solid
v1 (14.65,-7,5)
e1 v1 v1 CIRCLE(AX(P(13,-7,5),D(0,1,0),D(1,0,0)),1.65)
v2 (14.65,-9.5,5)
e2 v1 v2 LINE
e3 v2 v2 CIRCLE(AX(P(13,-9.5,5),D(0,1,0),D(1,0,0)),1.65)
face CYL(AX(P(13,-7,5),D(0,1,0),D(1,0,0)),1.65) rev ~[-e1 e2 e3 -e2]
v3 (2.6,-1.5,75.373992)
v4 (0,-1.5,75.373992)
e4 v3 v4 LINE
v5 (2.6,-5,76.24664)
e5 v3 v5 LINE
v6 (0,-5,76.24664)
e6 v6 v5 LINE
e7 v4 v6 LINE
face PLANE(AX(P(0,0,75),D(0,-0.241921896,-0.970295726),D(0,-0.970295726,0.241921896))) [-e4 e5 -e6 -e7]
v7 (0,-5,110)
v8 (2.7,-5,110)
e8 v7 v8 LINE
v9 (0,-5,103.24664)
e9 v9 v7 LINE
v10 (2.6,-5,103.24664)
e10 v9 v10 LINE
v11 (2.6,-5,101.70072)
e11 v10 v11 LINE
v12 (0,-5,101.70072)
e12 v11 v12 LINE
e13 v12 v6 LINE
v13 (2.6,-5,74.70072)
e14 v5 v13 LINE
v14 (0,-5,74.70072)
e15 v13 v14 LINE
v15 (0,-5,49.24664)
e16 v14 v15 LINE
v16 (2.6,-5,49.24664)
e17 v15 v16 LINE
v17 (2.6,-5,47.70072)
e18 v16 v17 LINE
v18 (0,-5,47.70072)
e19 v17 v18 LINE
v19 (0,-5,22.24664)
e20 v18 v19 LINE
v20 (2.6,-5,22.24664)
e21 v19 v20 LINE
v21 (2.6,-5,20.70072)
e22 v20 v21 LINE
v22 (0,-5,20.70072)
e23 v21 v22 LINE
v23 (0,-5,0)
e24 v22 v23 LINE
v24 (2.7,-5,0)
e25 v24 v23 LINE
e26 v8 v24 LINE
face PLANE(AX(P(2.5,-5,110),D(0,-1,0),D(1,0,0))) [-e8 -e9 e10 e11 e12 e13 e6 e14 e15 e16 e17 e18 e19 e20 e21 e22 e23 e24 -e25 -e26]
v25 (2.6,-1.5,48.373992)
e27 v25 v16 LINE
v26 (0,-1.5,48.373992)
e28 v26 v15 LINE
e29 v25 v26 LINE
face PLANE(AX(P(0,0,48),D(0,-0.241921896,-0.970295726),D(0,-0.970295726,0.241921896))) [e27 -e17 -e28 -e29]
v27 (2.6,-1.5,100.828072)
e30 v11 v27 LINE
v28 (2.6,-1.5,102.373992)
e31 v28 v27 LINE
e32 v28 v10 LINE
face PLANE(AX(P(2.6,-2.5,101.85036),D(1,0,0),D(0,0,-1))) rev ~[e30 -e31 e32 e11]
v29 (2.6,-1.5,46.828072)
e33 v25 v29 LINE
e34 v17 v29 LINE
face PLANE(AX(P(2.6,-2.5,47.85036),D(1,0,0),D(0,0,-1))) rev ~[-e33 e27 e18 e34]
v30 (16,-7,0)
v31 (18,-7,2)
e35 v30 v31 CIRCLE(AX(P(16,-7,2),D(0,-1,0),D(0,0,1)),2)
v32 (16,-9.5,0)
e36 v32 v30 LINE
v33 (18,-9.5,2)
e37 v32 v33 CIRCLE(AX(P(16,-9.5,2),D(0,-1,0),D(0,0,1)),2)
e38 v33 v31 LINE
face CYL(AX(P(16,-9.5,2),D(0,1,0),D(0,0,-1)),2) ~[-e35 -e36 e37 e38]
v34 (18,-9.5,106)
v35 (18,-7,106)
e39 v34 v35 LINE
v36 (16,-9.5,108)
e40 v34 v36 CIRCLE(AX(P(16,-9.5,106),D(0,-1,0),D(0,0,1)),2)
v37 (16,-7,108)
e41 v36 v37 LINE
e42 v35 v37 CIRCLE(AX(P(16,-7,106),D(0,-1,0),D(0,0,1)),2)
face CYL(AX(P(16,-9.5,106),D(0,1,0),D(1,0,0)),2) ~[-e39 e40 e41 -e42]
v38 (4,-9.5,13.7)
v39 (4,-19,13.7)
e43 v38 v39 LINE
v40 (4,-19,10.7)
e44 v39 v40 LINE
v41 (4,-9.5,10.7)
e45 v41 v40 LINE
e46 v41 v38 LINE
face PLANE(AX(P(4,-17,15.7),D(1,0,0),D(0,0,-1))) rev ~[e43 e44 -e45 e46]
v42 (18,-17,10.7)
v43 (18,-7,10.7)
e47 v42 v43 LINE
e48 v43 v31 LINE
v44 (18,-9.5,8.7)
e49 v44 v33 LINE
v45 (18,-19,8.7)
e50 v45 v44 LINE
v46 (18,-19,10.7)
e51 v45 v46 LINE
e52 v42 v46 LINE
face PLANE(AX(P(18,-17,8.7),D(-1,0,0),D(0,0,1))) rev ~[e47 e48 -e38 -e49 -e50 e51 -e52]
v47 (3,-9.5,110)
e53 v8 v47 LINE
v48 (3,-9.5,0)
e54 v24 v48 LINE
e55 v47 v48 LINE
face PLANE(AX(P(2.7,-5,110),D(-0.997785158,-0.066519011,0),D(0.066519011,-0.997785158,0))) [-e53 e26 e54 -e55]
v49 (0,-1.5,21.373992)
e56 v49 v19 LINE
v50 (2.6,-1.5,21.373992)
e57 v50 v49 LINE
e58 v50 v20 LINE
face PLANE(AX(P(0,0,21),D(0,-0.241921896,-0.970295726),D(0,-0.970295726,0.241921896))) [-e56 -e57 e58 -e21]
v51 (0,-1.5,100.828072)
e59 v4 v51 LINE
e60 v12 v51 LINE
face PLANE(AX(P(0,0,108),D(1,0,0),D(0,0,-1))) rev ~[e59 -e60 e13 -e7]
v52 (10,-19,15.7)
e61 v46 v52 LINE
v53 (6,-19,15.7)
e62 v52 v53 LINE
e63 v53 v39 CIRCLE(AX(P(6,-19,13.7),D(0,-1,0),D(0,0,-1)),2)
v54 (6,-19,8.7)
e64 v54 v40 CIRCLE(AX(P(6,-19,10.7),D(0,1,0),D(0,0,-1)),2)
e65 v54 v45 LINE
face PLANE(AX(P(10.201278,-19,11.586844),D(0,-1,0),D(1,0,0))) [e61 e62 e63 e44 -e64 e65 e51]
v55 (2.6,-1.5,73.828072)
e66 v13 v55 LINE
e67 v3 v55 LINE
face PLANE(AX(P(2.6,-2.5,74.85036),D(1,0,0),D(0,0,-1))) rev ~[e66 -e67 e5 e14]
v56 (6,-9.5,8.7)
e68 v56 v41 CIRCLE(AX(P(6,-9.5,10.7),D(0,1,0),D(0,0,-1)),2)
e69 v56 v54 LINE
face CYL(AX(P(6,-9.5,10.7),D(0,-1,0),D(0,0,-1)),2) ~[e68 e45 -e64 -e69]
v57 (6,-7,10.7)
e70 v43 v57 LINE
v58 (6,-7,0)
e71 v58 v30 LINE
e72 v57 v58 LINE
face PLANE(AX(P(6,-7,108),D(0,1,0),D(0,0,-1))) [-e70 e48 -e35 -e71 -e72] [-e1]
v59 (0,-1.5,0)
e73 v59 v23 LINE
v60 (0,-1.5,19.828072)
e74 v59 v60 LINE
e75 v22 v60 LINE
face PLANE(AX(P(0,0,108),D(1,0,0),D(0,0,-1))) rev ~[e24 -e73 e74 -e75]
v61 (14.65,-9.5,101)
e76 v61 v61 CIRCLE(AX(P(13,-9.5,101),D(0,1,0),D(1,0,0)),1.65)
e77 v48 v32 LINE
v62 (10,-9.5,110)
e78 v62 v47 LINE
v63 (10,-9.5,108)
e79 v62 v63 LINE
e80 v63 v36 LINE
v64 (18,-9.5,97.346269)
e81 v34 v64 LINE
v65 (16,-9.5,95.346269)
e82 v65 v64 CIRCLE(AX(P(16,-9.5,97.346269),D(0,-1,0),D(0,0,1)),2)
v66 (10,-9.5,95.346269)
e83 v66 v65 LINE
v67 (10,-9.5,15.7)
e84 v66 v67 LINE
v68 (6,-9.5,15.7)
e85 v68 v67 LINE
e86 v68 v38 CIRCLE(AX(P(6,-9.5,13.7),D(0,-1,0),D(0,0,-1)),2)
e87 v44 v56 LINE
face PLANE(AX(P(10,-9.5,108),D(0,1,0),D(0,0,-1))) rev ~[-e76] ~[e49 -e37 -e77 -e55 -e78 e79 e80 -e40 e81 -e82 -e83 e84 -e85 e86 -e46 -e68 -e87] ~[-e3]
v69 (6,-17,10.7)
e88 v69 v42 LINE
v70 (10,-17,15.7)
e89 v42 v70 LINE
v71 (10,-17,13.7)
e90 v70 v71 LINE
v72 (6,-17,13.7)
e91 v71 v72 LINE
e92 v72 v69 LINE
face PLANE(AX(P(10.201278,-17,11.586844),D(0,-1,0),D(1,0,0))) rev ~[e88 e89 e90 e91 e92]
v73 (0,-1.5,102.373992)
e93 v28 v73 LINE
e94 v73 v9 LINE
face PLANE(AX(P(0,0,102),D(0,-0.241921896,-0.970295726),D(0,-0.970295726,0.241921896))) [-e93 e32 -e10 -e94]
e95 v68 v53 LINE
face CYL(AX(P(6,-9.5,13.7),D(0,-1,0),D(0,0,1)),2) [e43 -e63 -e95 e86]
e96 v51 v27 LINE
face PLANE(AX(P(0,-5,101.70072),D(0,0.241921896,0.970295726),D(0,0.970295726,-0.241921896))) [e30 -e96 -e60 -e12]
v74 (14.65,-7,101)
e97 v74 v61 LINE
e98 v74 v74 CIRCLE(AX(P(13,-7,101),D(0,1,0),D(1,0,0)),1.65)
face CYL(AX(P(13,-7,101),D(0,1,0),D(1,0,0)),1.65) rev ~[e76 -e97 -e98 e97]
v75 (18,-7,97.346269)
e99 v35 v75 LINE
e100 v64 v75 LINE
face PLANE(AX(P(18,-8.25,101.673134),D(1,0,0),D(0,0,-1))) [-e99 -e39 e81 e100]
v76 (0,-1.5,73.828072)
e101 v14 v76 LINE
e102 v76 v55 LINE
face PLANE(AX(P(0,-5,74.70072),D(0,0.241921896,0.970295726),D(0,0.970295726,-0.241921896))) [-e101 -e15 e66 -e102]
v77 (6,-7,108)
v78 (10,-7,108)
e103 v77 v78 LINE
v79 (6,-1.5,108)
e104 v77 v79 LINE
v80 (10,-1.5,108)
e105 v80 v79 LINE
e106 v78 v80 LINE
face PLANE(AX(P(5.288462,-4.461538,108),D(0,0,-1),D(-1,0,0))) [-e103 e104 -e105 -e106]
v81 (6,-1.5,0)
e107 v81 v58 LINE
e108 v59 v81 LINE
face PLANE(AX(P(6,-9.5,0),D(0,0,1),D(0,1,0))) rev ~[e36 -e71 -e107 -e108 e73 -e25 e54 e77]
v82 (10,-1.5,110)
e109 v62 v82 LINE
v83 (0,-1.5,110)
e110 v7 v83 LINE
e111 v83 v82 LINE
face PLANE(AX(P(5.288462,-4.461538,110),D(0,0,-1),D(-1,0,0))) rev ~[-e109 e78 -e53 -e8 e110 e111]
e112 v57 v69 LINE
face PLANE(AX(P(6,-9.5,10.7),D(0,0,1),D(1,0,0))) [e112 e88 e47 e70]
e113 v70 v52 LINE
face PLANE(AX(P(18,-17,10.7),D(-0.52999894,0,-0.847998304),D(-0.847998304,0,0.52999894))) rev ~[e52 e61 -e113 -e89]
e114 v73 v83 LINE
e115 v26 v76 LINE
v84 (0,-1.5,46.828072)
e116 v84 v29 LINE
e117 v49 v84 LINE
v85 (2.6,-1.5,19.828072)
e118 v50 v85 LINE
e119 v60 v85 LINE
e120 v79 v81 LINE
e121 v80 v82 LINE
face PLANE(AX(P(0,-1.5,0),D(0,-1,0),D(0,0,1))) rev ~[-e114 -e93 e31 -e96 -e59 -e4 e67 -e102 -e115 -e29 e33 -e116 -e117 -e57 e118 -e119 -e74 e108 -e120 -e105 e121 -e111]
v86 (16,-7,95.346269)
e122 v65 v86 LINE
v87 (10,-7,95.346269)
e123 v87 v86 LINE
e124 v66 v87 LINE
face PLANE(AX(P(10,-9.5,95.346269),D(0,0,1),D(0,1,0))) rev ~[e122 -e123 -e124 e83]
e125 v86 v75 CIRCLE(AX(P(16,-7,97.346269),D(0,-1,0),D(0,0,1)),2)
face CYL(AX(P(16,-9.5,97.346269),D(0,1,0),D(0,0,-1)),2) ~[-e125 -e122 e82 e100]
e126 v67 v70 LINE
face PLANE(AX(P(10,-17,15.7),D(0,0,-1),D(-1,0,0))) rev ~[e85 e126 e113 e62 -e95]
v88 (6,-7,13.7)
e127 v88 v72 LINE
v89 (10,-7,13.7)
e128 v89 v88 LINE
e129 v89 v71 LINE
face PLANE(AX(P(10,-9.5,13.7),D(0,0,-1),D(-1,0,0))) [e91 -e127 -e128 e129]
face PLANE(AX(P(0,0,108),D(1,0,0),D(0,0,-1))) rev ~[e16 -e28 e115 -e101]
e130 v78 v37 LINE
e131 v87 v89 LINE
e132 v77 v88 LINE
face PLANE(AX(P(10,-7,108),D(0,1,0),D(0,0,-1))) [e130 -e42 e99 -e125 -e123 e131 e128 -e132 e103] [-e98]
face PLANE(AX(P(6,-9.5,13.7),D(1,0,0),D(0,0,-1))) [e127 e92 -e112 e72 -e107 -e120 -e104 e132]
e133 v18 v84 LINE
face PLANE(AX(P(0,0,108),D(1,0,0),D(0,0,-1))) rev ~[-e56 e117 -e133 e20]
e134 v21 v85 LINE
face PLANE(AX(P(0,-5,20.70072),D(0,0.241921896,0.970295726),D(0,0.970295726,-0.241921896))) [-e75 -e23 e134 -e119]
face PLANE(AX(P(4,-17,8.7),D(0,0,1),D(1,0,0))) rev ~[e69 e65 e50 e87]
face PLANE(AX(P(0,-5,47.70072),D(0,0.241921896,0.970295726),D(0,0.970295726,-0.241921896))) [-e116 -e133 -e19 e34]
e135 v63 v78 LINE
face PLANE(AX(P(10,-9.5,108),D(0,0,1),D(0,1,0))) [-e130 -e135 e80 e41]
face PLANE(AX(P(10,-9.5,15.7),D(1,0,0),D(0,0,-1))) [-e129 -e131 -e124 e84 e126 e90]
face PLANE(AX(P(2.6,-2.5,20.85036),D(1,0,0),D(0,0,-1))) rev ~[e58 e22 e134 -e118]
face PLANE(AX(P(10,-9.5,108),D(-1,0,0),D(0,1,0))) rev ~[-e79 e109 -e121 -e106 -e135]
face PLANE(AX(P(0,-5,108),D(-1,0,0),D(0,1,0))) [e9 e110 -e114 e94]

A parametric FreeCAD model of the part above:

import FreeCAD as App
import Part
import Sketcher
from FreeCAD import Vector
Q = App.Units.Quantity


def edges_at(feature, points):
    """Names of the edges that pass closest to the given points."""
    edges = feature.Shape.Edges
    near = lambda p: min(range(len(edges)), key=lambda i: edges[i].distToShape(Part.Vertex(*p))[0])
    return sorted({f"Edge{near(p) + 1}" for p in points})

doc = App.newDocument("Part")
params = doc.addObject("Spreadsheet::Sheet", "Params")
for row, (alias, value) in enumerate([
    ("sketch1_width", "6 mm"),
    ("sketch1_height", "108 mm"),
    ("pad1_length", "5 mm"),
    ("pocket1_length", "2.6 mm"),
    ("sketch3_height", "108 mm"),
    ("sketch3_width", "3.5 mm"),
    ("pad2_length", "4.5 mm"),
    ("sketch4_height", "108 mm"),
    ("sketch4_width", "2.5 mm"),
    ("pad3_length", "4 mm"),
    ("sketch5_width", "10 mm"),
    ("sketch5_height", "5 mm"),
    ("sketch5_width2", "2.5 mm"),
    ("sketch5_height2", "4.5 mm"),
    ("pad4_length", "2 mm"),
    ("sketch6_height", "3 mm"),
    ("sketch6_width", "2.5 mm"),
    ("pocket2_length", "4 mm"),
    ("sketch7_width", "2.5 mm"),
    ("sketch7_height", "10.7 mm"),
    ("pad5_length", "8 mm"),
    ("sketch8_diameter", "3.3 mm"),
    ("sketch9_diameter", "3.3 mm"),
    ("sketch10_width", "12 mm"),
    ("sketch10_width2", "4 mm"),
    ("sketch10_width3", "6 mm"),
    ("sketch10_height", "3 mm"),
    ("sketch10_height2", "2 mm"),
    ("pad6_length", "7.5 mm"),
    ("sketch11_width", "6 mm"),
    ("sketch11_width2", "14 mm"),
    ("sketch11_height", "7 mm"),
    ("sketch11_height2", "2 mm"),
    ("pad7_length", "2 mm"),
    ("fillet_radius", "2 mm"),
    ("sketch12_width", "10 mm"),
    ("sketch12_height", "0.5 mm"),
    ("sketch13_width", "0.2 mm"),
    ("sketch13_width2", "0.5 mm"),
    ("sketch13_height", "4.5 mm"),
    ("sketch14_width", "1 mm"),
    ("sketch14_height", "110 mm"),
], start=1):
    params.set(f"A{row}", alias)
    params.set(f"B{row}", "=" + value)
    params.setAlias(f"B{row}", alias)

body = doc.addObject("PartDesign::Body", "Body")

# Sketch on XZ plane
sketch1 = body.newObject("Sketcher::SketchObject", "Sketch")
sketch1.AttachmentSupport = (doc.getObject("XZ_Plane"), [""])
sketch1.MapMode = "FlatFace"
sketch1.addGeometry(Part.LineSegment(Vector(0, 0, 0), Vector(0, 108, 0)), False)
sketch1.addGeometry(Part.LineSegment(Vector(0, 108, 0), Vector(6, 108, 0)), False)
sketch1.addGeometry(Part.LineSegment(Vector(6, 108, 0), Vector(6, 0, 0)), False)
sketch1.addGeometry(Part.LineSegment(Vector(6, 0, 0), Vector(0, 0, 0)), False)
sketch1.addConstraint(Sketcher.Constraint("Coincident", 0, 2, 1, 1))
sketch1.addConstraint(Sketcher.Constraint("Coincident", 1, 2, 2, 1))
sketch1.addConstraint(Sketcher.Constraint("Coincident", 2, 2, 3, 1))
sketch1.addConstraint(Sketcher.Constraint("Coincident", 3, 2, 0, 1))
sketch1.addConstraint(Sketcher.Constraint("Vertical", 0))
sketch1.addConstraint(Sketcher.Constraint("Horizontal", 1))
sketch1.addConstraint(Sketcher.Constraint("Vertical", 2))
sketch1.addConstraint(Sketcher.Constraint("Horizontal", 3))
sketch1.addConstraint(Sketcher.Constraint("Coincident", 3, 2, -1, 1))
sketch1.addConstraint(Sketcher.Constraint("DistanceX", 1, 1, 1, 2, 6.0))
sketch1.addConstraint(Sketcher.Constraint("DistanceY", 0, 1, 0, 2, 108.0))
sketch1.setExpression("Constraints[9]", "Params.sketch1_width")
sketch1.setExpression("Constraints[10]", "Params.sketch1_height")
pad1 = body.newObject("PartDesign::Pad", "Pad")
pad1.Profile = sketch1
pad1.setExpression("Length", "Params.pad1_length")

# Sketch on YZ plane
sketch2 = body.newObject("Sketcher::SketchObject", "Sketch001")
sketch2.AttachmentSupport = (doc.getObject("YZ_Plane"), [""])
sketch2.MapMode = "FlatFace"
sketch2.addGeometry(Part.LineSegment(Vector(-5, 103.2, 0), Vector(0, 102, 0)), False)
sketch2.addGeometry(Part.LineSegment(Vector(0, 102, 0), Vector(0, 100.5, 0)), False)
sketch2.addGeometry(Part.LineSegment(Vector(0, 100.5, 0), Vector(-5, 101.7, 0)), False)
sketch2.addGeometry(Part.LineSegment(Vector(-5, 101.7, 0), Vector(-5, 103.2, 0)), False)
sketch2.addGeometry(Part.LineSegment(Vector(-5, 76.2, 0), Vector(0, 75, 0)), False)
sketch2.addGeometry(Part.LineSegment(Vector(0, 75, 0), Vector(0, 73.5, 0)), False)
sketch2.addGeometry(Part.LineSegment(Vector(0, 73.5, 0), Vector(-5, 74.7, 0)), False)
sketch2.addGeometry(Part.LineSegment(Vector(-5, 74.7, 0), Vector(-5, 76.2, 0)), False)
sketch2.addGeometry(Part.LineSegment(Vector(-5, 49.2, 0), Vector(0, 48, 0)), False)
sketch2.addGeometry(Part.LineSegment(Vector(0, 48, 0), Vector(0, 46.5, 0)), False)
sketch2.addGeometry(Part.LineSegment(Vector(0, 46.5, 0), Vector(-5, 47.7, 0)), False)
sketch2.addGeometry(Part.LineSegment(Vector(-5, 47.7, 0), Vector(-5, 49.2, 0)), False)
sketch2.addGeometry(Part.LineSegment(Vector(-5, 22.2, 0), Vector(0, 21, 0)), False)
sketch2.addGeometry(Part.LineSegment(Vector(0, 21, 0), Vector(0, 19.5, 0)), False)
sketch2.addGeometry(Part.LineSegment(Vector(0, 19.5, 0), Vector(-5, 20.7, 0)), False)
sketch2.addGeometry(Part.LineSegment(Vector(-5, 20.7, 0), Vector(-5, 22.2, 0)), False)
sketch2.addConstraint(Sketcher.Constraint("Coincident", 0, 2, 1, 1))
sketch2.addConstraint(Sketcher.Constraint("Coincident", 1, 2, 2, 1))
sketch2.addConstraint(Sketcher.Constraint("Coincident", 2, 2, 3, 1))
sketch2.addConstraint(Sketcher.Constraint("Coincident", 3, 2, 0, 1))
sketch2.addConstraint(Sketcher.Constraint("Coincident", 4, 2, 5, 1))
sketch2.addConstraint(Sketcher.Constraint("Coincident", 5, 2, 6, 1))
sketch2.addConstraint(Sketcher.Constraint("Coincident", 6, 2, 7, 1))
sketch2.addConstraint(Sketcher.Constraint("Coincident", 7, 2, 4, 1))
sketch2.addConstraint(Sketcher.Constraint("Coincident", 8, 2, 9, 1))
sketch2.addConstraint(Sketcher.Constraint("Coincident", 9, 2, 10, 1))
sketch2.addConstraint(Sketcher.Constraint("Coincident", 10, 2, 11, 1))
sketch2.addConstraint(Sketcher.Constraint("Coincident", 11, 2, 8, 1))
sketch2.addConstraint(Sketcher.Constraint("Coincident", 12, 2, 13, 1))
sketch2.addConstraint(Sketcher.Constraint("Coincident", 13, 2, 14, 1))
sketch2.addConstraint(Sketcher.Constraint("Coincident", 14, 2, 15, 1))
sketch2.addConstraint(Sketcher.Constraint("Coincident", 15, 2, 12, 1))
sketch2.addConstraint(Sketcher.Constraint("Vertical", 1))
sketch2.addConstraint(Sketcher.Constraint("Vertical", 3))
sketch2.addConstraint(Sketcher.Constraint("Vertical", 5))
sketch2.addConstraint(Sketcher.Constraint("Vertical", 7))
sketch2.addConstraint(Sketcher.Constraint("Vertical", 9))
sketch2.addConstraint(Sketcher.Constraint("Vertical", 11))
sketch2.addConstraint(Sketcher.Constraint("Vertical", 13))
sketch2.addConstraint(Sketcher.Constraint("Vertical", 15))
sketch2.addConstraint(Sketcher.Constraint("PointOnObject", 0, 2, -2))
sketch2.addConstraint(Sketcher.Constraint("PointOnObject", 4, 2, -2))
sketch2.addConstraint(Sketcher.Constraint("PointOnObject", 8, 2, -2))
sketch2.addConstraint(Sketcher.Constraint("PointOnObject", 12, 2, -2))
sketch2.addConstraint(Sketcher.Constraint("Parallel", 0, 2))
sketch2.addConstraint(Sketcher.Constraint("Parallel", 2, 4))
sketch2.addConstraint(Sketcher.Constraint("Parallel", 4, 6))
sketch2.addConstraint(Sketcher.Constraint("Parallel", 6, 8))
sketch2.addConstraint(Sketcher.Constraint("Parallel", 8, 10))
sketch2.addConstraint(Sketcher.Constraint("Parallel", 10, 12))
sketch2.addConstraint(Sketcher.Constraint("Parallel", 12, 14))
sketch2.addConstraint(Sketcher.Constraint("Vertical", 3, 2, 6, 2))
sketch2.addConstraint(Sketcher.Constraint("Vertical", 7, 2, 10, 2))
sketch2.addConstraint(Sketcher.Constraint("Vertical", 11, 2, 14, 2))
sketch2.addConstraint(Sketcher.Constraint("Equal", 3, 5))
sketch2.addConstraint(Sketcher.Constraint("Equal", 7, 9))
sketch2.addConstraint(Sketcher.Constraint("Equal", 11, 13))
sketch2.addConstraint(Sketcher.Constraint("Angle", 0, Q("-14 deg")))
sketch2.addConstraint(Sketcher.Constraint("DistanceY", -1, 1, 0, 2, 102.0))
sketch2.addConstraint(Sketcher.Constraint("DistanceX", 2, 2, -1, 1, 5.0))
sketch2.addConstraint(Sketcher.Constraint("DistanceY", -1, 1, 4, 2, 75.0))
sketch2.addConstraint(Sketcher.Constraint("DistanceY", -1, 1, 8, 2, 48.0))
sketch2.addConstraint(Sketcher.Constraint("DistanceY", -1, 1, 12, 2, 21.0))
sketch2.addConstraint(Sketcher.Constraint("DistanceY", 1, 2, 1, 1, 1.54592))
pocket1 = body.newObject("PartDesign::Pocket", "Pocket")
pocket1.Profile = sketch2
pocket1.setExpression("Length", "Params.pocket1_length")
pocket1.Reversed = True

# Sketch on XZ plane
sketch3 = body.newObject("Sketcher::SketchObject", "Sketch002")
sketch3.AttachmentSupport = (doc.getObject("XZ_Plane"), [""])
sketch3.MapMode = "FlatFace"
sketch3.AttachmentOffset = App.Placement(Vector(0, 0, 5), App.Rotation())
sketch3.addGeometry(Part.LineSegment(Vector(2.5, 108, 0), Vector(2.5, 0, 0)), False)
sketch3.addGeometry(Part.LineSegment(Vector(2.5, 0, 0), Vector(6, 0, 0)), False)
sketch3.addGeometry(Part.LineSegment(Vector(6, 0, 0), Vector(6, 108, 0)), False)
sketch3.addGeometry(Part.LineSegment(Vector(6, 108, 0), Vector(2.5, 108, 0)), False)
sketch3.addConstraint(Sketcher.Constraint("Coincident", 0, 2, 1, 1))
sketch3.addConstraint(Sketcher.Constraint("Coincident", 1, 2, 2, 1))
sketch3.addConstraint(Sketcher.Constraint("Coincident", 2, 2, 3, 1))
sketch3.addConstraint(Sketcher.Constraint("Coincident", 3, 2, 0, 1))
sketch3.addConstraint(Sketcher.Constraint("Vertical", 0))
sketch3.addConstraint(Sketcher.Constraint("Horizontal", 1))
sketch3.addConstraint(Sketcher.Constraint("Vertical", 2))
sketch3.addConstraint(Sketcher.Constraint("Horizontal", 3))
sketch3.addConstraint(Sketcher.Constraint("PointOnObject", 0, 2, -1))
sketch3.addConstraint(Sketcher.Constraint("DistanceY", 0, 2, 0, 1, 108.0))
sketch3.addConstraint(Sketcher.Constraint("DistanceX", 1, 1, 1, 2, 3.5))
sketch3.addConstraint(Sketcher.Constraint("DistanceX", -1, 1, 1, 2, 6.0))
sketch3.setExpression("Constraints[9]", "Params.sketch3_height")
sketch3.setExpression("Constraints[10]", "Params.sketch3_width")
pad2 = body.newObject("PartDesign::Pad", "Pad001")
pad2.Profile = sketch3
pad2.setExpression("Length", "Params.pad2_length")

# Sketch on YZ plane
sketch4 = body.newObject("Sketcher::SketchObject", "Sketch003")
sketch4.AttachmentSupport = (doc.getObject("YZ_Plane"), [""])
sketch4.MapMode = "FlatFace"
sketch4.AttachmentOffset = App.Placement(Vector(0, 0, 6), App.Rotation())
sketch4.addGeometry(Part.LineSegment(Vector(-7, 108, 0), Vector(-9.5, 108, 0)), False)
sketch4.addGeometry(Part.LineSegment(Vector(-9.5, 108, 0), Vector(-9.5, 0, 0)), False)
sketch4.addGeometry(Part.LineSegment(Vector(-9.5, 0, 0), Vector(-7, 0, 0)), False)
sketch4.addGeometry(Part.LineSegment(Vector(-7, 0, 0), Vector(-7, 108, 0)), False)
sketch4.addConstraint(Sketcher.Constraint("Coincident", 0, 2, 1, 1))
sketch4.addConstraint(Sketcher.Constraint("Coincident", 1, 2, 2, 1))
sketch4.addConstraint(Sketcher.Constraint("Coincident", 2, 2, 3, 1))
sketch4.addConstraint(Sketcher.Constraint("Coincident", 3, 2, 0, 1))
sketch4.addConstraint(Sketcher.Constraint("Horizontal", 0))
sketch4.addConstraint(Sketcher.Constraint("Vertical", 1))
sketch4.addConstraint(Sketcher.Constraint("Horizontal", 2))
sketch4.addConstraint(Sketcher.Constraint("Vertical", 3))
sketch4.addConstraint(Sketcher.Constraint("PointOnObject", 1, 2, -1))
sketch4.addConstraint(Sketcher.Constraint("DistanceY", 1, 2, 1, 1, 108.0))
sketch4.addConstraint(Sketcher.Constraint("DistanceX", 0, 2, 0, 1, 2.5))
sketch4.addConstraint(Sketcher.Constraint("DistanceX", 2, 2, -1, 1, 7.0))
sketch4.setExpression("Constraints[9]", "Params.sketch4_height")
sketch4.setExpression("Constraints[10]", "Params.sketch4_width")
pad3 = body.newObject("PartDesign::Pad", "Pad002")
pad3.Profile = sketch4
pad3.setExpression("Length", "Params.pad3_length")

# Sketch on XY plane
sketch5 = body.newObject("Sketcher::SketchObject", "Sketch004")
sketch5.AttachmentSupport = (doc.getObject("XY_Plane"), [""])
sketch5.MapMode = "FlatFace"
sketch5.AttachmentOffset = App.Placement(Vector(0, 0, 108), App.Rotation())
sketch5.addGeometry(Part.LineSegment(Vector(10, 0, 0), Vector(0, 0, 0)), False)
sketch5.addGeometry(Part.LineSegment(Vector(0, 0, 0), Vector(0, -5, 0)), False)
sketch5.addGeometry(Part.LineSegment(Vector(0, -5, 0), Vector(2.5, -5, 0)), False)
sketch5.addGeometry(Part.LineSegment(Vector(2.5, -5, 0), Vector(2.5, -9.5, 0)), False)
sketch5.addGeometry(Part.LineSegment(Vector(2.5, -9.5, 0), Vector(10, -9.5, 0)), False)
sketch5.addGeometry(Part.LineSegment(Vector(10, -9.5, 0), Vector(10, 0, 0)), False)
sketch5.addConstraint(Sketcher.Constraint("Coincident", 0, 2, 1, 1))
sketch5.addConstraint(Sketcher.Constraint("Coincident", 1, 2, 2, 1))
sketch5.addConstraint(Sketcher.Constraint("Coincident", 2, 2, 3, 1))
sketch5.addConstraint(Sketcher.Constraint("Coincident", 3, 2, 4, 1))
sketch5.addConstraint(Sketcher.Constraint("Coincident", 4, 2, 5, 1))
sketch5.addConstraint(Sketcher.Constraint("Coincident", 5, 2, 0, 1))
sketch5.addConstraint(Sketcher.Constraint("Horizontal", 0))
sketch5.addConstraint(Sketcher.Constraint("Vertical", 1))
sketch5.addConstraint(Sketcher.Constraint("Horizontal", 2))
sketch5.addConstraint(Sketcher.Constraint("Vertical", 3))
sketch5.addConstraint(Sketcher.Constraint("Horizontal", 4))
sketch5.addConstraint(Sketcher.Constraint("Vertical", 5))
sketch5.addConstraint(Sketcher.Constraint("Coincident", 0, 2, -1, 1))
sketch5.addConstraint(Sketcher.Constraint("DistanceX", 0, 2, 0, 1, 10.0))
sketch5.addConstraint(Sketcher.Constraint("DistanceY", 1, 2, 1, 1, 5.0))
sketch5.addConstraint(Sketcher.Constraint("DistanceX", 2, 1, 2, 2, 2.5))
sketch5.addConstraint(Sketcher.Constraint("DistanceY", 3, 2, 3, 1, 4.5))
sketch5.setExpression("Constraints[13]", "Params.sketch5_width")
sketch5.setExpression("Constraints[14]", "Params.sketch5_height")
sketch5.setExpression("Constraints[15]", "Params.sketch5_width2")
sketch5.setExpression("Constraints[16]", "Params.sketch5_height2")
pad4 = body.newObject("PartDesign::Pad", "Pad003")
pad4.Profile = sketch5
pad4.setExpression("Length", "Params.pad4_length")

# Sketch on YZ plane
sketch6 = body.newObject("Sketcher::SketchObject", "Sketch005")
sketch6.AttachmentSupport = (doc.getObject("YZ_Plane"), [""])
sketch6.MapMode = "FlatFace"
sketch6.AttachmentOffset = App.Placement(Vector(0, 0, 10), App.Rotation())
sketch6.addGeometry(Part.LineSegment(Vector(-7, 13.7, 0), Vector(-9.5, 13.7, 0)), False)
sketch6.addGeometry(Part.LineSegment(Vector(-9.5, 13.7, 0), Vector(-9.5, 10.7, 0)), False)
sketch6.addGeometry(Part.LineSegment(Vector(-9.5, 10.7, 0), Vector(-7, 10.7, 0)), False)
sketch6.addGeometry(Part.LineSegment(Vector(-7, 10.7, 0), Vector(-7, 13.7, 0)), False)
sketch6.addConstraint(Sketcher.Constraint("Coincident", 0, 2, 1, 1))
sketch6.addConstraint(Sketcher.Constraint("Coincident", 1, 2, 2, 1))
sketch6.addConstraint(Sketcher.Constraint("Coincident", 2, 2, 3, 1))
sketch6.addConstraint(Sketcher.Constraint("Coincident", 3, 2, 0, 1))
sketch6.addConstraint(Sketcher.Constraint("Horizontal", 0))
sketch6.addConstraint(Sketcher.Constraint("Vertical", 1))
sketch6.addConstraint(Sketcher.Constraint("Horizontal", 2))
sketch6.addConstraint(Sketcher.Constraint("Vertical", 3))
sketch6.addConstraint(Sketcher.Constraint("DistanceY", 1, 2, 1, 1, 3.0))
sketch6.addConstraint(Sketcher.Constraint("DistanceX", 0, 2, 0, 1, 2.5))
sketch6.addConstraint(Sketcher.Constraint("DistanceX", 2, 2, -1, 1, 7.0))
sketch6.addConstraint(Sketcher.Constraint("DistanceY", -1, 1, 0, 2, 13.7))
sketch6.setExpression("Constraints[8]", "Params.sketch6_height")
sketch6.setExpression("Constraints[9]", "Params.sketch6_width")
pocket2 = body.newObject("PartDesign::Pocket", "Pocket001")
pocket2.Profile = sketch6
pocket2.setExpression("Length", "Params.pocket2_length")

# Sketch on YZ plane
sketch7 = body.newObject("Sketcher::SketchObject", "Sketch006")
sketch7.AttachmentSupport = (doc.getObject("YZ_Plane"), [""])
sketch7.MapMode = "FlatFace"
sketch7.AttachmentOffset = App.Placement(Vector(0, 0, 10), App.Rotation())
sketch7.addGeometry(Part.LineSegment(Vector(-7, 108, 0), Vector(-9.5, 108, 0)), False)
sketch7.addGeometry(Part.LineSegment(Vector(-9.5, 108, 0), Vector(-9.5, 95.3, 0)), False)
sketch7.addGeometry(Part.LineSegment(Vector(-9.5, 95.3, 0), Vector(-7, 95.3, 0)), False)
sketch7.addGeometry(Part.LineSegment(Vector(-7, 95.3, 0), Vector(-7, 108, 0)), False)
sketch7.addGeometry(Part.LineSegment(Vector(-7, 10.7, 0), Vector(-9.5, 10.7, 0)), False)
sketch7.addGeometry(Part.LineSegment(Vector(-9.5, 10.7, 0), Vector(-9.5, 0, 0)), False)
sketch7.addGeometry(Part.LineSegment(Vector(-9.5, 0, 0), Vector(-7, 0, 0)), False)
sketch7.addGeometry(Part.LineSegment(Vector(-7, 0, 0), Vector(-7, 10.7, 0)), False)
sketch7.addConstraint(Sketcher.Constraint("Coincident", 0, 2, 1, 1))
sketch7.addConstraint(Sketcher.Constraint("Coincident", 1, 2, 2, 1))
sketch7.addConstraint(Sketcher.Constraint("Coincident", 2, 2, 3, 1))
sketch7.addConstraint(Sketcher.Constraint("Coincident", 3, 2, 0, 1))
sketch7.addConstraint(Sketcher.Constraint("Coincident", 4, 2, 5, 1))
sketch7.addConstraint(Sketcher.Constraint("Coincident", 5, 2, 6, 1))
sketch7.addConstraint(Sketcher.Constraint("Coincident", 6, 2, 7, 1))
sketch7.addConstraint(Sketcher.Constraint("Coincident", 7, 2, 4, 1))
sketch7.addConstraint(Sketcher.Constraint("Horizontal", 0))
sketch7.addConstraint(Sketcher.Constraint("Vertical", 1))
sketch7.addConstraint(Sketcher.Constraint("Horizontal", 2))
sketch7.addConstraint(Sketcher.Constraint("Vertical", 3))
sketch7.addConstraint(Sketcher.Constraint("Horizontal", 4))
sketch7.addConstraint(Sketcher.Constraint("Vertical", 5))
sketch7.addConstraint(Sketcher.Constraint("Horizontal", 6))
sketch7.addConstraint(Sketcher.Constraint("Vertical", 7))
sketch7.addConstraint(Sketcher.Constraint("PointOnObject", 5, 2, -1))
sketch7.addConstraint(Sketcher.Constraint("Vertical", 1, 2, 4, 2))
sketch7.addConstraint(Sketcher.Constraint("Vertical", 3, 2, 6, 2))
sketch7.addConstraint(Sketcher.Constraint("DistanceX", 0, 2, 0, 1, 2.5))
sketch7.addConstraint(Sketcher.Constraint("DistanceY", 5, 2, 5, 1, 10.7))
sketch7.addConstraint(Sketcher.Constraint("DistanceY", -1, 1, 0, 2, 108.0))
sketch7.addConstraint(Sketcher.Constraint("DistanceX", 2, 2, -1, 1, 7.0))
sketch7.addConstraint(Sketcher.Constraint("DistanceY", 1, 2, 1, 1, 12.653731))
sketch7.setExpression("Constraints[19]", "Params.sketch7_width")
sketch7.setExpression("Constraints[20]", "Params.sketch7_height")
pad5 = body.newObject("PartDesign::Pad", "Pad004")
pad5.Profile = sketch7
pad5.setExpression("Length", "Params.pad5_length")

# Sketch on XZ plane
sketch8 = body.newObject("Sketcher::SketchObject", "Sketch007")
sketch8.AttachmentSupport = (doc.getObject("XZ_Plane"), [""])
sketch8.MapMode = "FlatFace"
sketch8.AttachmentOffset = App.Placement(Vector(0, 0, 7), App.Rotation())
sketch8.addGeometry(Part.Circle(Vector(13, 5, 0), Vector(0, 0, 1), 1.6), False)
sketch8.addConstraint(Sketcher.Constraint("Diameter", 0, 3.3))
sketch8.addConstraint(Sketcher.Constraint("DistanceX", -1, 1, 0, 3, 13.0))
sketch8.addConstraint(Sketcher.Constraint("DistanceY", -1, 1, 0, 3, 5.0))
sketch8.setExpression("Constraints[0]", "Params.sketch8_diameter")
pocket3 = body.newObject("PartDesign::Pocket", "Pocket002")
pocket3.Profile = sketch8
pocket3.Type = "UpToFirst"
pocket3.Reversed = True

# Sketch on XZ plane
sketch9 = body.newObject("Sketcher::SketchObject", "Sketch008")
sketch9.AttachmentSupport = (doc.getObject("XZ_Plane"), [""])
sketch9.MapMode = "FlatFace"
sketch9.AttachmentOffset = App.Placement(Vector(0, 0, 7), App.Rotation())
sketch9.addGeometry(Part.Circle(Vector(13, 101, 0), Vector(0, 0, 1), 1.6), False)
sketch9.addConstraint(Sketcher.Constraint("Diameter", 0, 3.3))
sketch9.addConstraint(Sketcher.Constraint("DistanceX", -1, 1, 0, 3, 13.0))
sketch9.addConstraint(Sketcher.Constraint("DistanceY", -1, 1, 0, 3, 101.0))
sketch9.setExpression("Constraints[0]", "Params.sketch9_diameter")
pocket4 = body.newObject("PartDesign::Pocket", "Pocket003")
pocket4.Profile = sketch9
pocket4.Type = "UpToFirst"
pocket4.Reversed = True

# Sketch on XZ plane
sketch10 = body.newObject("Sketcher::SketchObject", "Sketch009")
sketch10.AttachmentSupport = (doc.getObject("XZ_Plane"), [""])
sketch10.MapMode = "FlatFace"
sketch10.AttachmentOffset = App.Placement(Vector(0, 0, 9.5), App.Rotation())
sketch10.addGeometry(Part.LineSegment(Vector(18, 10.7, 0), Vector(6, 10.7, 0)), False)
sketch10.addGeometry(Part.LineSegment(Vector(6, 10.7, 0), Vector(6, 13.7, 0)), False)
sketch10.addGeometry(Part.LineSegment(Vector(6, 13.7, 0), Vector(10, 13.7, 0)), False)
sketch10.addGeometry(Part.LineSegment(Vector(10, 13.7, 0), Vector(10, 15.7, 0)), False)
sketch10.addGeometry(Part.LineSegment(Vector(10, 15.7, 0), Vector(4, 15.7, 0)), False)
sketch10.addGeometry(Part.LineSegment(Vector(4, 15.7, 0), Vector(4, 8.7, 0)), False)
sketch10.addGeometry(Part.LineSegment(Vector(4, 8.7, 0), Vector(18, 8.7, 0)), False)
sketch10.addGeometry(Part.LineSegment(Vector(18, 8.7, 0), Vector(18, 10.7, 0)), False)
sketch10.addConstraint(Sketcher.Constraint("Coincident", 0, 2, 1, 1))
sketch10.addConstraint(Sketcher.Constraint("Coincident", 1, 2, 2, 1))
sketch10.addConstraint(Sketcher.Constraint("Coincident", 2, 2, 3, 1))
sketch10.addConstraint(Sketcher.Constraint("Coincident", 3, 2, 4, 1))
sketch10.addConstraint(Sketcher.Constraint("Coincident", 4, 2, 5, 1))
sketch10.addConstraint(Sketcher.Constraint("Coincident", 5, 2, 6, 1))
sketch10.addConstraint(Sketcher.Constraint("Coincident", 6, 2, 7, 1))
sketch10.addConstraint(Sketcher.Constraint("Coincident", 7, 2, 0, 1))
sketch10.addConstraint(Sketcher.Constraint("Horizontal", 0))
sketch10.addConstraint(Sketcher.Constraint("Vertical", 1))
sketch10.addConstraint(Sketcher.Constraint("Horizontal", 2))
sketch10.addConstraint(Sketcher.Constraint("Vertical", 3))
sketch10.addConstraint(Sketcher.Constraint("Horizontal", 4))
sketch10.addConstraint(Sketcher.Constraint("Vertical", 5))
sketch10.addConstraint(Sketcher.Constraint("Horizontal", 6))
sketch10.addConstraint(Sketcher.Constraint("Vertical", 7))
sketch10.addConstraint(Sketcher.Constraint("Equal", 3, 7))
sketch10.addConstraint(Sketcher.Constraint("DistanceX", 0, 2, 0, 1, 12.0))
sketch10.addConstraint(Sketcher.Constraint("DistanceX", 2, 1, 2, 2, 4.0))
sketch10.addConstraint(Sketcher.Constraint("DistanceX", 4, 2, 4, 1, 6.0))
sketch10.addConstraint(Sketcher.Constraint("DistanceY", 1, 1, 1, 2, 3.0))
sketch10.addConstraint(Sketcher.Constraint("DistanceY", 3, 1, 3, 2, 2.0))
sketch10.addConstraint(Sketcher.Constraint("DistanceX", -1, 1, 0, 2, 6.0))
sketch10.addConstraint(Sketcher.Constraint("DistanceY", -1, 1, 0, 2, 10.7))
sketch10.setExpression("Constraints[17]", "Params.sketch10_width")
sketch10.setExpression("Constraints[18]", "Params.sketch10_width2")
sketch10.setExpression("Constraints[19]", "Params.sketch10_width3")
sketch10.setExpression("Constraints[20]", "Params.sketch10_height")
sketch10.setExpression("Constraints[21]", "Params.sketch10_height2")
pad6 = body.newObject("PartDesign::Pad", "Pad005")
pad6.Profile = sketch10
pad6.setExpression("Length", "Params.pad6_length")

# Sketch on XZ plane
sketch11 = body.newObject("Sketcher::SketchObject", "Sketch010")
sketch11.AttachmentSupport = (doc.getObject("XZ_Plane"), [""])
sketch11.MapMode = "FlatFace"
sketch11.AttachmentOffset = App.Placement(Vector(0, 0, 17), App.Rotation())
sketch11.addGeometry(Part.LineSegment(Vector(10, 15.7, 0), Vector(4, 15.7, 0)), False)
sketch11.addGeometry(Part.LineSegment(Vector(4, 15.7, 0), Vector(4, 8.7, 0)), False)
sketch11.addGeometry(Part.LineSegment(Vector(4, 8.7, 0), Vector(18, 8.7, 0)), False)
sketch11.addGeometry(Part.LineSegment(Vector(18, 8.7, 0), Vector(18, 10.7, 0)), False)
sketch11.addGeometry(Part.LineSegment(Vector(18, 10.7, 0), Vector(10, 15.7, 0)), False)
sketch11.addConstraint(Sketcher.Constraint("Coincident", 0, 2, 1, 1))
sketch11.addConstraint(Sketcher.Constraint("Coincident", 1, 2, 2, 1))
sketch11.addConstraint(Sketcher.Constraint("Coincident", 2, 2, 3, 1))
sketch11.addConstraint(Sketcher.Constraint("Coincident", 3, 2, 4, 1))
sketch11.addConstraint(Sketcher.Constraint("Coincident", 4, 2, 0, 1))
sketch11.addConstraint(Sketcher.Constraint("Horizontal", 0))
sketch11.addConstraint(Sketcher.Constraint("Vertical", 1))
sketch11.addConstraint(Sketcher.Constraint("Horizontal", 2))
sketch11.addConstraint(Sketcher.Constraint("Vertical", 3))
sketch11.addConstraint(Sketcher.Constraint("DistanceX", 0, 2, 0, 1, 6.0))
sketch11.addConstraint(Sketcher.Constraint("DistanceX", 2, 1, 2, 2, 14.0))
sketch11.addConstraint(Sketcher.Constraint("DistanceY", 1, 2, 1, 1, 7.0))
sketch11.addConstraint(Sketcher.Constraint("DistanceY", 3, 1, 3, 2, 2.0))
sketch11.addConstraint(Sketcher.Constraint("DistanceX", -1, 1, 0, 2, 4.0))
sketch11.addConstraint(Sketcher.Constraint("DistanceY", -1, 1, 0, 2, 15.7))
sketch11.setExpression("Constraints[9]", "Params.sketch11_width")
sketch11.setExpression("Constraints[10]", "Params.sketch11_width2")
sketch11.setExpression("Constraints[11]", "Params.sketch11_height")
sketch11.setExpression("Constraints[12]", "Params.sketch11_height2")
pad7 = body.newObject("PartDesign::Pad", "Pad006")
pad7.Profile = sketch11
pad7.setExpression("Length", "Params.pad7_length")
doc.recompute()

fillet = body.newObject("PartDesign::Fillet", "Fillet")
fillet.Base = (pad7, edges_at(pad7, [
    (18, -8.25, 108),
    (18, -8.25, 95.346),
    (18, -8.25, 0),
    (4, -14.25, 15.7),
    (4, -14.25, 8.7),
]))
fillet.setExpression("Radius", "Params.fillet_radius")

# Sketch on XY plane
sketch12 = body.newObject("Sketcher::SketchObject", "Sketch011")
sketch12.AttachmentSupport = (doc.getObject("XY_Plane"), [""])
sketch12.MapMode = "FlatFace"
sketch12.AttachmentOffset = App.Placement(Vector(0, 0, 110), App.Rotation())
sketch12.addGeometry(Part.LineSegment(Vector(0, 0, 0), Vector(0, -0.5, 0)), False)
sketch12.addGeometry(Part.LineSegment(Vector(0, -0.5, 0), Vector(10, -0.5, 0)), False)
sketch12.addGeometry(Part.LineSegment(Vector(10, -0.5, 0), Vector(10, 0, 0)), False)
sketch12.addGeometry(Part.LineSegment(Vector(10, 0, 0), Vector(0, 0, 0)), False)
sketch12.addConstraint(Sketcher.Constraint("Coincident", 0, 2, 1, 1))
sketch12.addConstraint(Sketcher.Constraint("Coincident", 1, 2, 2, 1))
sketch12.addConstraint(Sketcher.Constraint("Coincident", 2, 2, 3, 1))
sketch12.addConstraint(Sketcher.Constraint("Coincident", 3, 2, 0, 1))
sketch12.addConstraint(Sketcher.Constraint("Vertical", 0))
sketch12.addConstraint(Sketcher.Constraint("Horizontal", 1))
sketch12.addConstraint(Sketcher.Constraint("Vertical", 2))
sketch12.addConstraint(Sketcher.Constraint("Horizontal", 3))
sketch12.addConstraint(Sketcher.Constraint("Coincident", 3, 2, -1, 1))
sketch12.addConstraint(Sketcher.Constraint("DistanceX", 1, 1, 1, 2, 10.0))
sketch12.addConstraint(Sketcher.Constraint("DistanceY", 0, 2, 0, 1, 0.5))
sketch12.setExpression("Constraints[9]", "Params.sketch12_width")
sketch12.setExpression("Constraints[10]", "Params.sketch12_height")
pocket5 = body.newObject("PartDesign::Pocket", "Pocket004")
pocket5.Profile = sketch12
pocket5.Type = "ThroughAll"

# Sketch on XY plane
sketch13 = body.newObject("Sketcher::SketchObject", "Sketch012")
sketch13.AttachmentSupport = (doc.getObject("XY_Plane"), [""])
sketch13.MapMode = "FlatFace"
sketch13.AttachmentOffset = App.Placement(Vector(0, 0, 110), App.Rotation())
sketch13.addGeometry(Part.LineSegment(Vector(2.7, -5, 0), Vector(2.5, -5, 0)), False)
sketch13.addGeometry(Part.LineSegment(Vector(2.5, -5, 0), Vector(2.5, -9.5, 0)), False)
sketch13.addGeometry(Part.LineSegment(Vector(2.5, -9.5, 0), Vector(3, -9.5, 0)), False)
sketch13.addGeometry(Part.LineSegment(Vector(3, -9.5, 0), Vector(2.7, -5, 0)), False)
sketch13.addConstraint(Sketcher.Constraint("Coincident", 0, 2, 1, 1))
sketch13.addConstraint(Sketcher.Constraint("Coincident", 1, 2, 2, 1))
sketch13.addConstraint(Sketcher.Constraint("Coincident", 2, 2, 3, 1))
sketch13.addConstraint(Sketcher.Constraint("Coincident", 3, 2, 0, 1))
sketch13.addConstraint(Sketcher.Constraint("Horizontal", 0))
sketch13.addConstraint(Sketcher.Constraint("Vertical", 1))
sketch13.addConstraint(Sketcher.Constraint("Horizontal", 2))
sketch13.addConstraint(Sketcher.Constraint("DistanceX", 0, 2, 0, 1, 0.2))
sketch13.addConstraint(Sketcher.Constraint("DistanceX", 2, 1, 2, 2, 0.5))
sketch13.addConstraint(Sketcher.Constraint("DistanceY", 1, 2, 1, 1, 4.5))
sketch13.addConstraint(Sketcher.Constraint("DistanceY", 0, 2, -1, 1, 5.0))
sketch13.addConstraint(Sketcher.Constraint("DistanceX", -1, 1, 2, 2, 3.0))
sketch13.setExpression("Constraints[7]", "Params.sketch13_width")
sketch13.setExpression("Constraints[8]", "Params.sketch13_width2")
sketch13.setExpression("Constraints[9]", "Params.sketch13_height")
pocket6 = body.newObject("PartDesign::Pocket", "Pocket005")
pocket6.Profile = sketch13
pocket6.Type = "ThroughAll"

# Sketch on YZ plane
sketch14 = body.newObject("Sketcher::SketchObject", "Sketch013")
sketch14.AttachmentSupport = (doc.getObject("YZ_Plane"), [""])
sketch14.MapMode = "FlatFace"
sketch14.addGeometry(Part.LineSegment(Vector(-0.5, 0, 0), Vector(-1.5, 0, 0)), False)
sketch14.addGeometry(Part.LineSegment(Vector(-1.5, 0, 0), Vector(-1.5, 110, 0)), False)
sketch14.addGeometry(Part.LineSegment(Vector(-1.5, 110, 0), Vector(-0.5, 110, 0)), False)
sketch14.addGeometry(Part.LineSegment(Vector(-0.5, 110, 0), Vector(-0.5, 0, 0)), False)
sketch14.addConstraint(Sketcher.Constraint("Coincident", 0, 2, 1, 1))
sketch14.addConstraint(Sketcher.Constraint("Coincident", 1, 2, 2, 1))
sketch14.addConstraint(Sketcher.Constraint("Coincident", 2, 2, 3, 1))
sketch14.addConstraint(Sketcher.Constraint("Coincident", 3, 2, 0, 1))
sketch14.addConstraint(Sketcher.Constraint("Horizontal", 0))
sketch14.addConstraint(Sketcher.Constraint("Vertical", 1))
sketch14.addConstraint(Sketcher.Constraint("Horizontal", 2))
sketch14.addConstraint(Sketcher.Constraint("Vertical", 3))
sketch14.addConstraint(Sketcher.Constraint("PointOnObject", 0, 2, -1))
sketch14.addConstraint(Sketcher.Constraint("DistanceX", 0, 2, 0, 1, 1.0))
sketch14.addConstraint(Sketcher.Constraint("DistanceY", 1, 1, 1, 2, 110.0))
sketch14.addConstraint(Sketcher.Constraint("DistanceX", 0, 2, -1, 1, 1.5))
sketch14.setExpression("Constraints[9]", "Params.sketch14_width")
sketch14.setExpression("Constraints[10]", "Params.sketch14_height")
pocket7 = body.newObject("PartDesign::Pocket", "Pocket006")
pocket7.Profile = sketch14
pocket7.Type = "ThroughAll"
pocket7.Reversed = True

doc.recompute()
